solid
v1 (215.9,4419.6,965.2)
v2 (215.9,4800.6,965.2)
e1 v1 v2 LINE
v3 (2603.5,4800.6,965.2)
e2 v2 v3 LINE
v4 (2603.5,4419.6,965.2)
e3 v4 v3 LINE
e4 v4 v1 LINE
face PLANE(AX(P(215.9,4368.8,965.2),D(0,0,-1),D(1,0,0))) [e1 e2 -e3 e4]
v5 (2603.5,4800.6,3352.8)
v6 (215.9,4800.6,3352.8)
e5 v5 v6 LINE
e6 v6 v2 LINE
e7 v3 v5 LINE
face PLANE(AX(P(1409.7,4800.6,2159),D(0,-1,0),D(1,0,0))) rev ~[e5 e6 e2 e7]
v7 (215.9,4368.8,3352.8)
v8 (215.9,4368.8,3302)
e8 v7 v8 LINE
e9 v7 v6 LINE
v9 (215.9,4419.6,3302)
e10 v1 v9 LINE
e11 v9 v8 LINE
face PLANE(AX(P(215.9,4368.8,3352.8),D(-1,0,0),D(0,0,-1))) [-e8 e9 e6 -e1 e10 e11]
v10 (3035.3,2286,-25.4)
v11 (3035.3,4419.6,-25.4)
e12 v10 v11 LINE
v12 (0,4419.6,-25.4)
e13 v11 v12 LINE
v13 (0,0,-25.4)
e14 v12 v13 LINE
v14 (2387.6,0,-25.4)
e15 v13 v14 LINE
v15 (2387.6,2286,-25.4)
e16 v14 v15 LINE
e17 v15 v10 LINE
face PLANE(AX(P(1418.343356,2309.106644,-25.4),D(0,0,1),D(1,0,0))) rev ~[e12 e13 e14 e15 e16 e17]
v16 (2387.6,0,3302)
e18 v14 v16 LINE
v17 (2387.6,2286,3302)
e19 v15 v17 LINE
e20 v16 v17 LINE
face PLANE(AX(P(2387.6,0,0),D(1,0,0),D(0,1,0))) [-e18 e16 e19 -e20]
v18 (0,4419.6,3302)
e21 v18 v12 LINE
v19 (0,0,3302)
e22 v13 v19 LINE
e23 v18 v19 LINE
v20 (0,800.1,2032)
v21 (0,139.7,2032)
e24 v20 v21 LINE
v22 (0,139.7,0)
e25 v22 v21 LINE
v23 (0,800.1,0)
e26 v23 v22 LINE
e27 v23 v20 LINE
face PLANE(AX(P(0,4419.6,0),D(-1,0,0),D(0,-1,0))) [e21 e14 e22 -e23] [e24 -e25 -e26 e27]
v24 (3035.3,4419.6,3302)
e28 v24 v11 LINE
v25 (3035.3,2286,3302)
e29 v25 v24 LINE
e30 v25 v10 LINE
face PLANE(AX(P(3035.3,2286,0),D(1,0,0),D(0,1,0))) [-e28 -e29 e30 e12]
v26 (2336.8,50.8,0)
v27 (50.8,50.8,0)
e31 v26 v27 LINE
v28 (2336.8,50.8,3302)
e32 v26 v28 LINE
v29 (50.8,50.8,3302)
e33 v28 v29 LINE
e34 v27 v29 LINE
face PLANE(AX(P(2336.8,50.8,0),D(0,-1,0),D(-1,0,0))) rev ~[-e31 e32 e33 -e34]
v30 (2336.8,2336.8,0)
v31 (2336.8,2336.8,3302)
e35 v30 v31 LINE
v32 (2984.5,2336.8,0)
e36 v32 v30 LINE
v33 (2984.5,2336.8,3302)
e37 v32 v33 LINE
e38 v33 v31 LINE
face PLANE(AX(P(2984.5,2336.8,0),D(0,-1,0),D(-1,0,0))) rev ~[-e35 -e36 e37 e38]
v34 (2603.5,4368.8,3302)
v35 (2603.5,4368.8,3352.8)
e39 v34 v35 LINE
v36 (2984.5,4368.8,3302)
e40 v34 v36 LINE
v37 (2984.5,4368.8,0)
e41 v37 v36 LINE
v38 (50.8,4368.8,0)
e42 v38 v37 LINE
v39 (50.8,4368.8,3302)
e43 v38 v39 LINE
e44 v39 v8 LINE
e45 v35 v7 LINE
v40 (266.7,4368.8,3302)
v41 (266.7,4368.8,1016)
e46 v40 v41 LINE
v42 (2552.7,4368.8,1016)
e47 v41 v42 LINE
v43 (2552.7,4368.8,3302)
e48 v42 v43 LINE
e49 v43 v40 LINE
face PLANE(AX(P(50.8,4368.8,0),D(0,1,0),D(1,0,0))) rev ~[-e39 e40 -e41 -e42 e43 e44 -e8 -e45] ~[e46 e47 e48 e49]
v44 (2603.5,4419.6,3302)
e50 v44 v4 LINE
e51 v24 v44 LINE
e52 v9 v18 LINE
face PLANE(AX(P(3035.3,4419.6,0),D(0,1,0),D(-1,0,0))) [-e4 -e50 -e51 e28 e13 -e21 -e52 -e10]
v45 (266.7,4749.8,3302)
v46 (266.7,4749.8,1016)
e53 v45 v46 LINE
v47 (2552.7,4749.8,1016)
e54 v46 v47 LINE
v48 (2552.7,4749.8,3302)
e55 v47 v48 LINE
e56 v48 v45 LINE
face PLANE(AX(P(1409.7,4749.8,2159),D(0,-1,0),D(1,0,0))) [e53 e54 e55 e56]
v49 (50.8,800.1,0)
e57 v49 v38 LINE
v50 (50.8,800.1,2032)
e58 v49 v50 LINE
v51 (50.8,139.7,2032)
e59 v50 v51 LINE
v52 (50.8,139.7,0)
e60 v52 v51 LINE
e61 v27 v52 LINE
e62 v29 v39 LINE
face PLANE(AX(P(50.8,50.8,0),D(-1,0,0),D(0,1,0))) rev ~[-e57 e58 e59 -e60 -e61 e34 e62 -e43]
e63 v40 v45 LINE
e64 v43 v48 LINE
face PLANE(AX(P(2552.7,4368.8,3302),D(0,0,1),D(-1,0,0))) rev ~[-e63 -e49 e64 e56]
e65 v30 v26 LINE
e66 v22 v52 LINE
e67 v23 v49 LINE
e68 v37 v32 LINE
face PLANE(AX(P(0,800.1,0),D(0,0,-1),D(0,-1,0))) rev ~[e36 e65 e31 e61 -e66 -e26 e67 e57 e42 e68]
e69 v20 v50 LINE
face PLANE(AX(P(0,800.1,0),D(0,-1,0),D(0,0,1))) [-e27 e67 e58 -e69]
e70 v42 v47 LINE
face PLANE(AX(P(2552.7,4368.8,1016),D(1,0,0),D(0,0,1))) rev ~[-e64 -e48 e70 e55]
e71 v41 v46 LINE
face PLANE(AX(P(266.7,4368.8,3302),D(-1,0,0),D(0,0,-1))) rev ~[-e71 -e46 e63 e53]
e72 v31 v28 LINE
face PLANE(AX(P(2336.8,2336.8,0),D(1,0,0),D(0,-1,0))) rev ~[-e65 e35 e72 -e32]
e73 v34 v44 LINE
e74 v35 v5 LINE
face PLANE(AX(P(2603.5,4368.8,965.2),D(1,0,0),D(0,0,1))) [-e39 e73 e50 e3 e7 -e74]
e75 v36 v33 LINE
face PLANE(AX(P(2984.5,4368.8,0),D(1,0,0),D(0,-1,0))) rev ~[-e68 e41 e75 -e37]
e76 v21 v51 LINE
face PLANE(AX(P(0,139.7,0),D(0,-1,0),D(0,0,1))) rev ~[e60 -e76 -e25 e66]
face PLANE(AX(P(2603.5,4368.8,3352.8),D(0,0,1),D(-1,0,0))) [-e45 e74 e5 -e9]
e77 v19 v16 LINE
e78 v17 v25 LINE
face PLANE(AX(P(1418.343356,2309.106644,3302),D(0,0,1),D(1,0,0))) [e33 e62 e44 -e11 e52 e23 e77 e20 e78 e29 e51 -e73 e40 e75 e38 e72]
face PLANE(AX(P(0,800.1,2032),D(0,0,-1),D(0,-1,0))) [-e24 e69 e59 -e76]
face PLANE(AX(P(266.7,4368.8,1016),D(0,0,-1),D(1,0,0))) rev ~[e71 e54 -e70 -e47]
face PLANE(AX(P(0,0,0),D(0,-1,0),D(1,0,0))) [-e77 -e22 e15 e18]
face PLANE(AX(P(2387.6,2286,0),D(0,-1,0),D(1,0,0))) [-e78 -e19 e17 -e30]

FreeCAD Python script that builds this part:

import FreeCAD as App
import Part
import Sketcher
from FreeCAD import Vector
Q = App.Units.Quantity

doc = App.newDocument("Part")
body = doc.addObject("PartDesign::Body", "Body")

sketch1 = body.newObject("Sketcher::SketchObject", "Sketch")
sketch1.AttachmentSupport = (doc.getObject("XY_Plane"), [""])
sketch1.MapMode = "FlatFace"
sketch1.addGeometry([
    Part.LineSegment(Vector(3035.3, 4419.6, 0), Vector(0, 4419.6, 0)),
    Part.LineSegment(Vector(0, 4419.6, 0), Vector(0, 0, 0)),
    Part.LineSegment(Vector(0, 0, 0), Vector(2387.6, 0, 0)),
    Part.LineSegment(Vector(2387.6, 0, 0), Vector(2387.6, 2286, 0)),
    Part.LineSegment(Vector(2387.6, 2286, 0), Vector(3035.3, 2286, 0)),
    Part.LineSegment(Vector(3035.3, 2286, 0), Vector(3035.3, 4419.6, 0)),
    Part.LineSegment(Vector(2336.8, 50.8, 0), Vector(50.8, 50.8, 0)),
    Part.LineSegment(Vector(50.8, 50.8, 0), Vector(50.8, 4368.8, 0)),
    Part.LineSegment(Vector(50.8, 4368.8, 0), Vector(2984.5, 4368.8, 0)),
    Part.LineSegment(Vector(2984.5, 4368.8, 0), Vector(2984.5, 2336.8, 0)),
    Part.LineSegment(Vector(2984.5, 2336.8, 0), Vector(2336.8, 2336.8, 0)),
    Part.LineSegment(Vector(2336.8, 2336.8, 0), Vector(2336.8, 50.8, 0)),
], False)
sketch1.addConstraint([
    Sketcher.Constraint("Coincident", 0, 2, 1, 1),
    Sketcher.Constraint("Coincident", 1, 2, 2, 1),
    Sketcher.Constraint("Coincident", 2, 2, 3, 1),
    Sketcher.Constraint("Coincident", 3, 2, 4, 1),
    Sketcher.Constraint("Coincident", 4, 2, 5, 1),
    Sketcher.Constraint("Coincident", 5, 2, 0, 1),
    Sketcher.Constraint("Coincident", 6, 2, 7, 1),
    Sketcher.Constraint("Coincident", 7, 2, 8, 1),
    Sketcher.Constraint("Coincident", 8, 2, 9, 1),
    Sketcher.Constraint("Coincident", 9, 2, 10, 1),
    Sketcher.Constraint("Coincident", 10, 2, 11, 1),
    Sketcher.Constraint("Coincident", 11, 2, 6, 1),
    Sketcher.Constraint("Horizontal", 0),
    Sketcher.Constraint("Vertical", 1),
    Sketcher.Constraint("Horizontal", 2),
    Sketcher.Constraint("Vertical", 3),
    Sketcher.Constraint("Horizontal", 4),
    Sketcher.Constraint("Vertical", 5),
    Sketcher.Constraint("Horizontal", 6),
    Sketcher.Constraint("Vertical", 7),
    Sketcher.Constraint("Horizontal", 8),
    Sketcher.Constraint("Vertical", 9),
    Sketcher.Constraint("Horizontal", 10),
    Sketcher.Constraint("Vertical", 11),
    Sketcher.Constraint("Coincident", 1, 2, -1, 1),
    Sketcher.Constraint("Equal", 4, 10),
    Sketcher.Constraint("Equal", 6, 3),
    Sketcher.Constraint("Equal", 3, 11),
    Sketcher.Constraint("DistanceX", 2, 1, 2, 2, Q("94 in")),
    Sketcher.Constraint("DistanceX", 6, 2, 6, 1, Q("90 in")),
    Sketcher.Constraint("DistanceY", 1, 2, 1, 1, Q("174 in")),
    Sketcher.Constraint("DistanceY", 7, 1, 7, 2, Q("170 in")),
    Sketcher.Constraint("DistanceX", 0, 2, 0, 1, Q("119.5 in")),
    Sketcher.Constraint("DistanceX", -1, 1, 6, 2, Q("2 in")),
    Sketcher.Constraint("DistanceY", -1, 1, 6, 2, Q("2 in")),
])
pad1 = body.newObject("PartDesign::Pad", "Pad")
pad1.Profile = sketch1
pad1.Length = Q("130 in")

sketch2 = body.newObject("Sketcher::SketchObject", "Sketch001")
sketch2.AttachmentSupport = (doc.getObject("XY_Plane"), [""])
sketch2.MapMode = "FlatFace"
sketch2.addGeometry([
    Part.LineSegment(Vector(0, 4419.6, 0), Vector(0, 0, 0)),
    Part.LineSegment(Vector(0, 0, 0), Vector(2387.6, 0, 0)),
    Part.LineSegment(Vector(2387.6, 0, 0), Vector(2387.6, 2286, 0)),
    Part.LineSegment(Vector(2387.6, 2286, 0), Vector(3035.3, 2286, 0)),
    Part.LineSegment(Vector(3035.3, 2286, 0), Vector(3035.3, 4419.6, 0)),
    Part.LineSegment(Vector(3035.3, 4419.6, 0), Vector(0, 4419.6, 0)),
], False)
sketch2.addConstraint([
    Sketcher.Constraint("Coincident", 0, 2, 1, 1),
    Sketcher.Constraint("Coincident", 1, 2, 2, 1),
    Sketcher.Constraint("Coincident", 2, 2, 3, 1),
    Sketcher.Constraint("Coincident", 3, 2, 4, 1),
    Sketcher.Constraint("Coincident", 4, 2, 5, 1),
    Sketcher.Constraint("Coincident", 5, 2, 0, 1),
    Sketcher.Constraint("Vertical", 0),
    Sketcher.Constraint("Horizontal", 1),
    Sketcher.Constraint("Vertical", 2),
    Sketcher.Constraint("Horizontal", 3),
    Sketcher.Constraint("Vertical", 4),
    Sketcher.Constraint("Horizontal", 5),
    Sketcher.Constraint("Coincident", 0, 2, -1, 1),
    Sketcher.Constraint("DistanceX", 1, 1, 1, 2, Q("94 in")),
    Sketcher.Constraint("DistanceY", 0, 2, 0, 1, Q("174 in")),
    Sketcher.Constraint("DistanceY", 2, 1, 2, 2, Q("90 in")),
    Sketcher.Constraint("DistanceX", 3, 1, 3, 2, Q("25.5 in")),
])
pad2 = body.newObject("PartDesign::Pad", "Pad001")
pad2.Profile = sketch2
pad2.Length = Q("1 in")
pad2.Reversed = True

sketch3 = body.newObject("Sketcher::SketchObject", "Sketch002")
sketch3.AttachmentSupport = (doc.getObject("YZ_Plane"), [""])
sketch3.MapMode = "FlatFace"
sketch3.addGeometry([
    Part.LineSegment(Vector(800.1, 2032, 0), Vector(800.1, 0, 0)),
    Part.LineSegment(Vector(800.1, 0, 0), Vector(139.7, 0, 0)),
    Part.LineSegment(Vector(139.7, 0, 0), Vector(139.7, 2032, 0)),
    Part.LineSegment(Vector(139.7, 2032, 0), Vector(800.1, 2032, 0)),
], False)
sketch3.addConstraint([
    Sketcher.Constraint("Coincident", 0, 2, 1, 1),
    Sketcher.Constraint("Coincident", 1, 2, 2, 1),
    Sketcher.Constraint("Coincident", 2, 2, 3, 1),
    Sketcher.Constraint("Coincident", 3, 2, 0, 1),
    Sketcher.Constraint("Vertical", 0),
    Sketcher.Constraint("Horizontal", 1),
    Sketcher.Constraint("Vertical", 2),
    Sketcher.Constraint("Horizontal", 3),
    Sketcher.Constraint("PointOnObject", 0, 2, -1),
    Sketcher.Constraint("DistanceX", 1, 2, 1, 1, Q("26 in")),
    Sketcher.Constraint("DistanceY", 0, 2, 0, 1, Q("80 in")),
    Sketcher.Constraint("DistanceX", -1, 1, 0, 2, Q("31.5 in")),
])
pocket1 = body.newObject("PartDesign::Pocket", "Pocket")
pocket1.Profile = sketch3
pocket1.Length = Q("2 in")
pocket1.Reversed = True

sketch4 = body.newObject("Sketcher::SketchObject", "Sketch003")
sketch4.AttachmentSupport = (doc.getObject("XZ_Plane"), [""])
sketch4.MapMode = "FlatFace"
sketch4.AttachmentOffset = App.Placement(Vector(0, 0, -172 * 25.4), App.Rotation())
sketch4.addGeometry([
    Part.LineSegment(Vector(2603.5, 965.2, 0), Vector(2603.5, 3352.8, 0)),
    Part.LineSegment(Vector(2603.5, 3352.8, 0), Vector(215.9, 3352.8, 0)),
    Part.LineSegment(Vector(215.9, 3352.8, 0), Vector(215.9, 965.2, 0)),
    Part.LineSegment(Vector(215.9, 965.2, 0), Vector(2603.5, 965.2, 0)),
], False)
sketch4.addConstraint([
    Sketcher.Constraint("Coincident", 0, 2, 1, 1),
    Sketcher.Constraint("Coincident", 1, 2, 2, 1),
    Sketcher.Constraint("Coincident", 2, 2, 3, 1),
    Sketcher.Constraint("Coincident", 3, 2, 0, 1),
    Sketcher.Constraint("Vertical", 0),
    Sketcher.Constraint("Horizontal", 1),
    Sketcher.Constraint("Vertical", 2),
    Sketcher.Constraint("Horizontal", 3),
    Sketcher.Constraint("Equal", 3, 0),
    Sketcher.Constraint("DistanceX", 1, 2, 1, 1, Q("94 in")),
    Sketcher.Constraint("DistanceY", -1, 1, 0, 2, Q("132 in")),
    Sketcher.Constraint("DistanceX", -1, 1, 0, 2, Q("102.5 in")),
])
pad3 = body.newObject("PartDesign::Pad", "Pad002")
pad3.Profile = sketch4
pad3.Length = Q("17 in")
pad3.Reversed = True

sketch5 = body.newObject("Sketcher::SketchObject", "Sketch004")
sketch5.AttachmentSupport = (doc.getObject("XZ_Plane"), [""])
sketch5.MapMode = "FlatFace"
sketch5.AttachmentOffset = App.Placement(Vector(0, 0, -172 * 25.4), App.Rotation())
sketch5.addGeometry([
    Part.LineSegment(Vector(2552.7, 1016, 0), Vector(2552.7, 3302, 0)),
    Part.LineSegment(Vector(2552.7, 3302, 0), Vector(266.7, 3302, 0)),
    Part.LineSegment(Vector(266.7, 3302, 0), Vector(266.7, 1016, 0)),
    Part.LineSegment(Vector(266.7, 1016, 0), Vector(2552.7, 1016, 0)),
], False)
sketch5.addConstraint([
    Sketcher.Constraint("Coincident", 0, 2, 1, 1),
    Sketcher.Constraint("Coincident", 1, 2, 2, 1),
    Sketcher.Constraint("Coincident", 2, 2, 3, 1),
    Sketcher.Constraint("Coincident", 3, 2, 0, 1),
    Sketcher.Constraint("Vertical", 0),
    Sketcher.Constraint("Horizontal", 1),
    Sketcher.Constraint("Vertical", 2),
    Sketcher.Constraint("Horizontal", 3),
    Sketcher.Constraint("Equal", 3, 0),
    Sketcher.Constraint("DistanceX", 1, 2, 1, 1, Q("90 in")),
    Sketcher.Constraint("DistanceY", -1, 1, 0, 2, Q("130 in")),
    Sketcher.Constraint("DistanceX", -1, 1, 0, 2, Q("100.5 in")),
])
pocket2 = body.newObject("PartDesign::Pocket", "Pocket001")
pocket2.Profile = sketch5
pocket2.Length = Q("15 in")

doc.recompute()
